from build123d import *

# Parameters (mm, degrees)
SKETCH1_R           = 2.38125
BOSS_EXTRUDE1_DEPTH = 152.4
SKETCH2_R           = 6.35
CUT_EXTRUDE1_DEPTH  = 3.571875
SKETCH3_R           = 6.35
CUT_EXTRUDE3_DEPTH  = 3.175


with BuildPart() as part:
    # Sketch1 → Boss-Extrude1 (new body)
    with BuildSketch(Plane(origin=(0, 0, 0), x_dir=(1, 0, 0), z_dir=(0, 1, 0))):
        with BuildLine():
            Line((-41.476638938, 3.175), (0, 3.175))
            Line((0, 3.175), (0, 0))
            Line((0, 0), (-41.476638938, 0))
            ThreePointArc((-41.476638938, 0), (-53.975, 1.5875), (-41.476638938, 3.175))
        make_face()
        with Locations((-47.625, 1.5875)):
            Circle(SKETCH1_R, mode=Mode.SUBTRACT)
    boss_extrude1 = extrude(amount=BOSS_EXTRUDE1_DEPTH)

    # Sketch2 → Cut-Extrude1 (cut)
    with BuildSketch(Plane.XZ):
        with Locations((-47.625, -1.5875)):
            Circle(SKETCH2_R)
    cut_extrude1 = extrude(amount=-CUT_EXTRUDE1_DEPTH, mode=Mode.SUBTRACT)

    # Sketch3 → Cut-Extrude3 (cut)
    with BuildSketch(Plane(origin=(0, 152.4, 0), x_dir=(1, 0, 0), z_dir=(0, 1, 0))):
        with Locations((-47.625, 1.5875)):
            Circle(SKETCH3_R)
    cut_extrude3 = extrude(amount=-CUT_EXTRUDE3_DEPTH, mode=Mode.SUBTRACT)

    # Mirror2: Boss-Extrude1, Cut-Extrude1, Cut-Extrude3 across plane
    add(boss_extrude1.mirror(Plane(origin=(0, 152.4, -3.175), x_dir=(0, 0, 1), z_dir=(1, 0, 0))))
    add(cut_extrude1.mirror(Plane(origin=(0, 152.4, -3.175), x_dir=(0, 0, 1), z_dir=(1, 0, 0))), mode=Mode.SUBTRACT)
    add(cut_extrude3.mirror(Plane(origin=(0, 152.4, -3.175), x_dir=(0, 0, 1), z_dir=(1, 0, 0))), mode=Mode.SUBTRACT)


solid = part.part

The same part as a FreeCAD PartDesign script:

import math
import FreeCAD as App
import Part
import Sketcher

V = App.Vector
Q = App.Units.Quantity

doc = App.newDocument("Part")
body = doc.addObject("PartDesign::Body", "Body")

# Sketch on XZ plane
sketch1 = body.newObject("Sketcher::SketchObject", "Sketch")
sketch1.AttachmentSupport = (doc.getObject("XZ_Plane"), [""])
sketch1.MapMode = "FlatFace"
sketch1.addGeometry([
    Part.LineSegment(V(0, -3.175, 0), V(-41.476639, -3.175, 0)),  # 0
    Part.ArcOfCircle(Part.Circle(V(-47.625, -1.5875, 0), V(0, 0, 1), 6.35), math.radians(14.477512), math.radians(345.522488)),  # 1
    Part.LineSegment(V(-41.476639, 0, 0), V(0, 0, 0)),  # 2
    Part.LineSegment(V(0, 0, 0), V(0, -3.175, 0)),  # 3
    Part.Circle(V(-47.625, -1.5875, 0), V(0, 0, 1), 2.38125),  # 4
], False)
sketch1.addConstraint([
    Sketcher.Constraint("Coincident", 0, 2, 1, 2),
    Sketcher.Constraint("Coincident", 1, 1, 2, 1),
    Sketcher.Constraint("Coincident", 2, 2, 3, 1),
    Sketcher.Constraint("Coincident", 3, 2, 0, 1),
    Sketcher.Constraint("Horizontal", 0),
    Sketcher.Constraint("Horizontal", 2),
    Sketcher.Constraint("Vertical", 3),
    Sketcher.Constraint("Coincident", 2, 2, -1, 1),
    Sketcher.Constraint("Coincident", 4, 3, 1, 3),
    Sketcher.Constraint("Vertical", 0, 2, 1, 1),
    Sketcher.Constraint("Radius", 1, Q("0.25 in")),
    Sketcher.Constraint("Diameter", 4, Q("0.1875 in")),
    Sketcher.Constraint("DistanceY", 3, 2, 3, 1, Q("0.125 in")),
    Sketcher.Constraint("DistanceX", 1, 3, -1, 1, Q("1.875 in")),
])
pad1 = body.newObject("PartDesign::Pad", "Pad")
pad1.Profile = sketch1
pad1.Length = Q("6 in")
pad1.Reversed = True

# Sketch on XZ plane
sketch2 = body.newObject("Sketcher::SketchObject", "Sketch001")
sketch2.AttachmentSupport = (doc.getObject("XZ_Plane"), [""])
sketch2.MapMode = "FlatFace"
sketch2.addGeometry(Part.Circle(V(-47.625, -1.5875, 0), V(0, 0, 1), 6.35), False)
sketch2.addConstraint([
    Sketcher.Constraint("Diameter", 0, Q("0.5 in")),
    Sketcher.Constraint("DistanceX", 0, 3, -1, 1, Q("1.875 in")),
    Sketcher.Constraint("DistanceY", 0, 3, -1, 1, Q("0.0625 in")),
])
pocket1 = body.newObject("PartDesign::Pocket", "Pocket")
pocket1.Profile = sketch2
pocket1.Length = Q("0.140625 in")

# Sketch on XZ plane
sketch3 = body.newObject("Sketcher::SketchObject", "Sketch002")
sketch3.AttachmentSupport = (doc.getObject("XZ_Plane"), [""])
sketch3.MapMode = "FlatFace"
sketch3.AttachmentOffset = App.Placement(V(0, 0, -6 * 25.4), App.Rotation())
sketch3.addGeometry(Part.Circle(V(-47.625, -1.5875, 0), V(0, 0, 1), 6.35), False)
sketch3.addConstraint([
    Sketcher.Constraint("Diameter", 0, Q("0.5 in")),
    Sketcher.Constraint("DistanceX", 0, 3, -1, 1, Q("1.875 in")),
    Sketcher.Constraint("DistanceY", 0, 3, -1, 1, Q("0.0625 in")),
])
pocket2 = body.newObject("PartDesign::Pocket", "Pocket001")
pocket2.Profile = sketch3
pocket2.Length = Q("0.125 in")
pocket2.Reversed = True
doc.recompute()

mirrored = body.newObject("PartDesign::Mirrored", "Mirrored")
mirrored.Originals = [pad1, pocket1, pocket2]
mirrored.MirrorPlane = (doc.getObject("YZ_Plane"), [""])
body.Tip = mirrored

doc.recompute()
